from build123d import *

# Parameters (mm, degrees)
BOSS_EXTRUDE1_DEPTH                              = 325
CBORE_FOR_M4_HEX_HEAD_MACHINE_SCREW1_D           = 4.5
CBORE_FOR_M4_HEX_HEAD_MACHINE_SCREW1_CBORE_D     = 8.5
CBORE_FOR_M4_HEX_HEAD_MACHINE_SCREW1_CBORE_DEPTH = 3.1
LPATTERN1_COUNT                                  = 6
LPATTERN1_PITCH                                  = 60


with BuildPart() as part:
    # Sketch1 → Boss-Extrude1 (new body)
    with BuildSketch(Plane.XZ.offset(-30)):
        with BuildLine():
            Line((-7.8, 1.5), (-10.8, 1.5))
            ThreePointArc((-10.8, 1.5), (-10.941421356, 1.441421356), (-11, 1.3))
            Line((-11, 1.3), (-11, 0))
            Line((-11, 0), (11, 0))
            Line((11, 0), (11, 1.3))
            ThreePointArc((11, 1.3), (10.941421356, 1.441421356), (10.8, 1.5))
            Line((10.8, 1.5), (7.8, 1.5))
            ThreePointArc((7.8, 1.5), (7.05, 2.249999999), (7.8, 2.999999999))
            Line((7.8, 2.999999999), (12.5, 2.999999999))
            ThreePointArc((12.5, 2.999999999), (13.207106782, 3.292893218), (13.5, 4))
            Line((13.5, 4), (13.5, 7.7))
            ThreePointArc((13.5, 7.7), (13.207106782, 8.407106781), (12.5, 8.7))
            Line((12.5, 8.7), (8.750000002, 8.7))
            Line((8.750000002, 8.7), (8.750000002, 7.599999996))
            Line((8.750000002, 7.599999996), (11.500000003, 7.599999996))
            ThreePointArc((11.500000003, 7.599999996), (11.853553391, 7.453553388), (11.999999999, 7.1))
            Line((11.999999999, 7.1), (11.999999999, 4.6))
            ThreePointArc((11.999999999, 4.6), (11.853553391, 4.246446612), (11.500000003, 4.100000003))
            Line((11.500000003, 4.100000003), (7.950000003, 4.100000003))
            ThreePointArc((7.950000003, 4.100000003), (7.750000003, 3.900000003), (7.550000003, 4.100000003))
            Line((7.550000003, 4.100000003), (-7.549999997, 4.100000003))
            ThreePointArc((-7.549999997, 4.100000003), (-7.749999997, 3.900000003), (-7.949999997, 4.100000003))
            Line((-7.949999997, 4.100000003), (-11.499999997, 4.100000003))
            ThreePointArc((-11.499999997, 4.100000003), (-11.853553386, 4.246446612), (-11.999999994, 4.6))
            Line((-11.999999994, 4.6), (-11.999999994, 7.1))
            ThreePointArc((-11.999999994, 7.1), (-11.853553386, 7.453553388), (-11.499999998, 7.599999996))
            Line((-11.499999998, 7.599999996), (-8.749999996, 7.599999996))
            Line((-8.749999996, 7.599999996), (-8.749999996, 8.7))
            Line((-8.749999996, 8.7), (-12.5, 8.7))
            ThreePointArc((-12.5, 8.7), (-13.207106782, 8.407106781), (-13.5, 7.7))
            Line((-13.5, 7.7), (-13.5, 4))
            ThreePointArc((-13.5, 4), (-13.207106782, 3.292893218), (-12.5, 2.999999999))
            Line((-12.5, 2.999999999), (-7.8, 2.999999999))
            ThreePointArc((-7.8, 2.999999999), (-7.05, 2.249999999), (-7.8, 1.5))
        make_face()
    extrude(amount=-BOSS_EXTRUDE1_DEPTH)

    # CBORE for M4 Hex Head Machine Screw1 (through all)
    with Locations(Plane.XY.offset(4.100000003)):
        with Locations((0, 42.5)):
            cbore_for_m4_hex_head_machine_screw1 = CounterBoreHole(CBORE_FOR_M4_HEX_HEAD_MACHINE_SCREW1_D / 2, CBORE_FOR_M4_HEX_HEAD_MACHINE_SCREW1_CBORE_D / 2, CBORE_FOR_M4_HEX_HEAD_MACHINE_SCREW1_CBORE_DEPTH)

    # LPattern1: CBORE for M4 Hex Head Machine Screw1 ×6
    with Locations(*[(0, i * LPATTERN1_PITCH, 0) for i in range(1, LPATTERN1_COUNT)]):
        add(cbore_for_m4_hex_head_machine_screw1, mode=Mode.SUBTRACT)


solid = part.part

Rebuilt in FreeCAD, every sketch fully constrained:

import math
import FreeCAD as App
import Part
import Sketcher
Q = App.Units.Quantity

doc = App.newDocument("Part")
body = doc.addObject("PartDesign::Body", "Body")

sketch1 = body.newObject("Sketcher::SketchObject", "Sketch")
sketch1.AttachmentSupport = (doc.getObject("XZ_Plane"), [""])
sketch1.MapMode = "FlatFace"
sketch1.AttachmentOffset = App.Placement(App.Vector(0, 0, -30), App.Rotation())
sketch1.addGeometry(Part.LineSegment(App.Vector(-7.8, 1.5, 0), App.Vector(-10.8, 1.5, 0)), False)
sketch1.addGeometry(Part.ArcOfCircle(Part.Circle(App.Vector(-10.8, 1.3, 0), App.Vector(0, 0, 1), 0.2), math.radians(90), math.radians(180)), False)
sketch1.addGeometry(Part.LineSegment(App.Vector(-11, 1.3, 0), App.Vector(-11, 0, 0)), False)
sketch1.addGeometry(Part.LineSegment(App.Vector(-11, 0, 0), App.Vector(11, 0, 0)), False)
sketch1.addGeometry(Part.LineSegment(App.Vector(11, 0, 0), App.Vector(11, 1.3, 0)), False)
sketch1.addGeometry(Part.ArcOfCircle(Part.Circle(App.Vector(10.8, 1.3, 0), App.Vector(0, 0, 1), 0.2), math.radians(0), math.radians(90)), False)
sketch1.addGeometry(Part.LineSegment(App.Vector(10.8, 1.5, 0), App.Vector(7.8, 1.5, 0)), False)
sketch1.addGeometry(Part.ArcOfCircle(Part.Circle(App.Vector(7.8, 2.25, 0), App.Vector(0, 0, 1), 0.75), math.radians(90), math.radians(270)), False)
sketch1.addGeometry(Part.LineSegment(App.Vector(7.8, 3, 0), App.Vector(12.5, 3, 0)), False)
sketch1.addGeometry(Part.ArcOfCircle(Part.Circle(App.Vector(12.5, 4, 0), App.Vector(0, 0, 1), 1), math.radians(-90), math.radians(0)), False)
sketch1.addGeometry(Part.LineSegment(App.Vector(13.5, 4, 0), App.Vector(13.5, 7.7, 0)), False)
sketch1.addGeometry(Part.ArcOfCircle(Part.Circle(App.Vector(12.5, 7.7, 0), App.Vector(0, 0, 1), 1), math.radians(0), math.radians(90)), False)
sketch1.addGeometry(Part.LineSegment(App.Vector(12.5, 8.7, 0), App.Vector(8.75, 8.7, 0)), False)
sketch1.addGeometry(Part.LineSegment(App.Vector(8.75, 8.7, 0), App.Vector(8.75, 7.6, 0)), False)
sketch1.addGeometry(Part.LineSegment(App.Vector(8.75, 7.6, 0), App.Vector(11.5, 7.6, 0)), False)
sketch1.addGeometry(Part.ArcOfCircle(Part.Circle(App.Vector(11.5, 7.1, 0), App.Vector(0, 0, 1), 0.5), math.radians(0), math.radians(90)), False)
sketch1.addGeometry(Part.LineSegment(App.Vector(12, 7.1, 0), App.Vector(12, 4.6, 0)), False)
sketch1.addGeometry(Part.ArcOfCircle(Part.Circle(App.Vector(11.5, 4.6, 0), App.Vector(0, 0, 1), 0.5), math.radians(-90), math.radians(0)), False)
sketch1.addGeometry(Part.LineSegment(App.Vector(11.5, 4.1, 0), App.Vector(7.95, 4.1, 0)), False)
sketch1.addGeometry(Part.ArcOfCircle(Part.Circle(App.Vector(7.75, 4.1, 0), App.Vector(0, 0, 1), 0.2), math.radians(180), math.radians(360)), False)
sketch1.addGeometry(Part.LineSegment(App.Vector(7.55, 4.1, 0), App.Vector(-7.55, 4.1, 0)), False)
sketch1.addGeometry(Part.ArcOfCircle(Part.Circle(App.Vector(-7.75, 4.1, 0), App.Vector(0, 0, 1), 0.2), math.radians(180), math.radians(360)), False)
sketch1.addGeometry(Part.LineSegment(App.Vector(-7.95, 4.1, 0), App.Vector(-11.5, 4.1, 0)), False)
sketch1.addGeometry(Part.ArcOfCircle(Part.Circle(App.Vector(-11.5, 4.6, 0), App.Vector(0, 0, 1), 0.5), math.radians(180), math.radians(270)), False)
sketch1.addGeometry(Part.LineSegment(App.Vector(-12, 4.6, 0), App.Vector(-12, 7.1, 0)), False)
sketch1.addGeometry(Part.ArcOfCircle(Part.Circle(App.Vector(-11.5, 7.1, 0), App.Vector(0, 0, 1), 0.5), math.radians(90), math.radians(180)), False)
sketch1.addGeometry(Part.LineSegment(App.Vector(-11.5, 7.6, 0), App.Vector(-8.75, 7.6, 0)), False)
sketch1.addGeometry(Part.LineSegment(App.Vector(-8.75, 7.6, 0), App.Vector(-8.75, 8.7, 0)), False)
sketch1.addGeometry(Part.LineSegment(App.Vector(-8.75, 8.7, 0), App.Vector(-12.5, 8.7, 0)), False)
sketch1.addGeometry(Part.ArcOfCircle(Part.Circle(App.Vector(-12.5, 7.7, 0), App.Vector(0, 0, 1), 1), math.radians(90), math.radians(180)), False)
sketch1.addGeometry(Part.LineSegment(App.Vector(-13.5, 7.7, 0), App.Vector(-13.5, 4, 0)), False)
sketch1.addGeometry(Part.ArcOfCircle(Part.Circle(App.Vector(-12.5, 4, 0), App.Vector(0, 0, 1), 1), math.radians(180), math.radians(270)), False)
sketch1.addGeometry(Part.LineSegment(App.Vector(-12.5, 3, 0), App.Vector(-7.8, 3, 0)), False)
sketch1.addGeometry(Part.ArcOfCircle(Part.Circle(App.Vector(-7.8, 2.25, 0), App.Vector(0, 0, 1), 0.75), math.radians(-90), math.radians(90)), False)
sketch1.addConstraint(Sketcher.Constraint("Tangent", 0, 2, 1, 1))
sketch1.addConstraint(Sketcher.Constraint("Tangent", 1, 2, 2, 1))
sketch1.addConstraint(Sketcher.Constraint("Coincident", 2, 2, 3, 1))
sketch1.addConstraint(Sketcher.Constraint("Coincident", 3, 2, 4, 1))
sketch1.addConstraint(Sketcher.Constraint("Tangent", 4, 2, 5, 1))
sketch1.addConstraint(Sketcher.Constraint("Tangent", 5, 2, 6, 1))
sketch1.addConstraint(Sketcher.Constraint("Tangent", 6, 2, 7, 2))
sketch1.addConstraint(Sketcher.Constraint("Tangent", 7, 1, 8, 1))
sketch1.addConstraint(Sketcher.Constraint("Tangent", 8, 2, 9, 1))
sketch1.addConstraint(Sketcher.Constraint("Tangent", 9, 2, 10, 1))
sketch1.addConstraint(Sketcher.Constraint("Tangent", 10, 2, 11, 1))
sketch1.addConstraint(Sketcher.Constraint("Tangent", 11, 2, 12, 1))
sketch1.addConstraint(Sketcher.Constraint("Coincident", 12, 2, 13, 1))
sketch1.addConstraint(Sketcher.Constraint("Coincident", 13, 2, 14, 1))
sketch1.addConstraint(Sketcher.Constraint("Tangent", 14, 2, 15, 2))
sketch1.addConstraint(Sketcher.Constraint("Tangent", 15, 1, 16, 1))
sketch1.addConstraint(Sketcher.Constraint("Tangent", 16, 2, 17, 2))
sketch1.addConstraint(Sketcher.Constraint("Tangent", 17, 1, 18, 1))
sketch1.addConstraint(Sketcher.Constraint("Coincident", 18, 2, 19, 2))
sketch1.addConstraint(Sketcher.Constraint("Coincident", 19, 1, 20, 1))
sketch1.addConstraint(Sketcher.Constraint("Coincident", 20, 2, 21, 2))
sketch1.addConstraint(Sketcher.Constraint("Coincident", 21, 1, 22, 1))
sketch1.addConstraint(Sketcher.Constraint("Tangent", 22, 2, 23, 2))
sketch1.addConstraint(Sketcher.Constraint("Tangent", 23, 1, 24, 1))
sketch1.addConstraint(Sketcher.Constraint("Tangent", 24, 2, 25, 2))
sketch1.addConstraint(Sketcher.Constraint("Tangent", 25, 1, 26, 1))
sketch1.addConstraint(Sketcher.Constraint("Coincident", 26, 2, 27, 1))
sketch1.addConstraint(Sketcher.Constraint("Coincident", 27, 2, 28, 1))
sketch1.addConstraint(Sketcher.Constraint("Tangent", 28, 2, 29, 1))
sketch1.addConstraint(Sketcher.Constraint("Tangent", 29, 2, 30, 1))
sketch1.addConstraint(Sketcher.Constraint("Tangent", 30, 2, 31, 1))
sketch1.addConstraint(Sketcher.Constraint("Tangent", 31, 2, 32, 1))
sketch1.addConstraint(Sketcher.Constraint("Tangent", 32, 2, 33, 2))
sketch1.addConstraint(Sketcher.Constraint("Tangent", 33, 1, 0, 1))
sketch1.addConstraint(Sketcher.Constraint("Horizontal", 0))
sketch1.addConstraint(Sketcher.Constraint("Vertical", 2))
sketch1.addConstraint(Sketcher.Constraint("Horizontal", 3))
sketch1.addConstraint(Sketcher.Constraint("Vertical", 4))
sketch1.addConstraint(Sketcher.Constraint("Horizontal", 6))
sketch1.addConstraint(Sketcher.Constraint("Horizontal", 8))
sketch1.addConstraint(Sketcher.Constraint("Vertical", 10))
sketch1.addConstraint(Sketcher.Constraint("Horizontal", 12))
sketch1.addConstraint(Sketcher.Constraint("Vertical", 13))
sketch1.addConstraint(Sketcher.Constraint("Horizontal", 14))
sketch1.addConstraint(Sketcher.Constraint("Vertical", 16))
sketch1.addConstraint(Sketcher.Constraint("Horizontal", 18))
sketch1.addConstraint(Sketcher.Constraint("Horizontal", 20))
sketch1.addConstraint(Sketcher.Constraint("Horizontal", 22))
sketch1.addConstraint(Sketcher.Constraint("Vertical", 24))
sketch1.addConstraint(Sketcher.Constraint("Horizontal", 26))
sketch1.addConstraint(Sketcher.Constraint("Vertical", 27))
sketch1.addConstraint(Sketcher.Constraint("Horizontal", 28))
sketch1.addConstraint(Sketcher.Constraint("Vertical", 30))
sketch1.addConstraint(Sketcher.Constraint("Horizontal", 32))
sketch1.addConstraint(Sketcher.Constraint("Equal", 1, 5))
sketch1.addConstraint(Sketcher.Constraint("Equal", 9, 11))
sketch1.addConstraint(Sketcher.Constraint("Equal", 15, 17))
sketch1.addConstraint(Sketcher.Constraint("Equal", 5, 19))
sketch1.addConstraint(Sketcher.Constraint("Equal", 19, 21))
sketch1.addConstraint(Sketcher.Constraint("Equal", 17, 23))
sketch1.addConstraint(Sketcher.Constraint("Equal", 23, 25))
sketch1.addConstraint(Sketcher.Constraint("Equal", 11, 29))
sketch1.addConstraint(Sketcher.Constraint("Equal", 29, 31))
sketch1.addConstraint(Sketcher.Constraint("Equal", 7, 33))
sketch1.addConstraint(Sketcher.Constraint("Symmetric", 2, 2, 3, 2, -1, 1))
sketch1.addConstraint(Sketcher.Constraint("Symmetric", 19, 3, 21, 3, -2))
sketch1.addConstraint(Sketcher.Constraint("Symmetric", 17, 3, 23, 3, -2))
sketch1.addConstraint(Sketcher.Constraint("Symmetric", 11, 3, 29, 3, -2))
sketch1.addConstraint(Sketcher.Constraint("Symmetric", 7, 3, 33, 3, -2))
sketch1.addConstraint(Sketcher.Constraint("Symmetric", 13, 2, 26, 2, -2))
sketch1.addConstraint(Sketcher.Constraint("Horizontal", 21, 3, 17, 1))
sketch1.addConstraint(Sketcher.Constraint("Horizontal", 18, 2, 19, 1))
sketch1.addConstraint(Sketcher.Constraint("Radius", 9, Q("1 mm")))
sketch1.addConstraint(Sketcher.Constraint("Radius", 1, Q("0.2 mm")))
sketch1.addConstraint(Sketcher.Constraint("Radius", 15, Q("0.5 mm")))
sketch1.addConstraint(Sketcher.Constraint("DistanceX", 0, 2, 0, 1, Q("3 mm")))
sketch1.addConstraint(Sketcher.Constraint("DistanceX", 3, 1, 3, 2, Q("22 mm")))
sketch1.addConstraint(Sketcher.Constraint("Radius", 7, Q("0.75 mm")))
sketch1.addConstraint(Sketcher.Constraint("DistanceX", 8, 1, 8, 2, Q("4.7 mm")))
sketch1.addConstraint(Sketcher.Constraint("DistanceX", 20, 2, 20, 1, Q("15.1 mm")))
sketch1.addConstraint(Sketcher.Constraint("DistanceY", 2, 2, 2, 1, Q("1.3 mm")))
sketch1.addConstraint(Sketcher.Constraint("DistanceY", 10, 1, 10, 2, Q("3.7 mm")))
sketch1.addConstraint(Sketcher.Constraint("DistanceY", 13, 2, 13, 1, Q("1.1 mm")))
sketch1.addConstraint(Sketcher.Constraint("DistanceY", 16, 2, 16, 1, Q("2.5 mm")))
sketch1.addConstraint(Sketcher.Constraint("DistanceX", -1, 1, 15, 1, Q("12 mm")))
sketch1.addConstraint(Sketcher.Constraint("DistanceX", 19, 3, 12, 2, Q("1 mm")))
pad1 = body.newObject("PartDesign::Pad", "Pad")
pad1.Profile = sketch1
pad1.Length = 325
pad1.Reversed = True

sketch2 = body.newObject("Sketcher::SketchObject", "Sketch001")
sketch2.AttachmentSupport = (doc.getObject("XY_Plane"), [""])
sketch2.MapMode = "FlatFace"
sketch2.AttachmentOffset = App.Placement(App.Vector(0, 0, 4.1), App.Rotation())
sketch2.addGeometry(Part.Circle(App.Vector(0, 42.5, 0), App.Vector(0, 0, 1), 2.2), False)
sketch2.addConstraint(Sketcher.Constraint("PointOnObject", 0, 3, -2))
sketch2.addConstraint(Sketcher.Constraint("Diameter", 0, Q("4.5 mm")))
sketch2.addConstraint(Sketcher.Constraint("DistanceY", -1, 1, 0, 3, Q("42.5 mm")))
doc.recompute()
hole = body.newObject("PartDesign::Hole", "Hole")
hole.Profile = sketch2
hole.ThreadType = "None"
hole.Diameter = 4.5
hole.DepthType = "ThroughAll"
hole.HoleCutType = "Counterbore"
hole.HoleCutDiameter = 8.5
hole.HoleCutDepth = 3.1
doc.recompute()

linearpattern = body.newObject("PartDesign::LinearPattern", "LinearPattern")
linearpattern.Originals = [hole]
linearpattern.Direction = (doc.getObject("Y_Axis"), [""])
linearpattern.Mode = "offset"
linearpattern.Offset = 60
linearpattern.Occurrences = 6
body.Tip = linearpattern

doc.recompute()
